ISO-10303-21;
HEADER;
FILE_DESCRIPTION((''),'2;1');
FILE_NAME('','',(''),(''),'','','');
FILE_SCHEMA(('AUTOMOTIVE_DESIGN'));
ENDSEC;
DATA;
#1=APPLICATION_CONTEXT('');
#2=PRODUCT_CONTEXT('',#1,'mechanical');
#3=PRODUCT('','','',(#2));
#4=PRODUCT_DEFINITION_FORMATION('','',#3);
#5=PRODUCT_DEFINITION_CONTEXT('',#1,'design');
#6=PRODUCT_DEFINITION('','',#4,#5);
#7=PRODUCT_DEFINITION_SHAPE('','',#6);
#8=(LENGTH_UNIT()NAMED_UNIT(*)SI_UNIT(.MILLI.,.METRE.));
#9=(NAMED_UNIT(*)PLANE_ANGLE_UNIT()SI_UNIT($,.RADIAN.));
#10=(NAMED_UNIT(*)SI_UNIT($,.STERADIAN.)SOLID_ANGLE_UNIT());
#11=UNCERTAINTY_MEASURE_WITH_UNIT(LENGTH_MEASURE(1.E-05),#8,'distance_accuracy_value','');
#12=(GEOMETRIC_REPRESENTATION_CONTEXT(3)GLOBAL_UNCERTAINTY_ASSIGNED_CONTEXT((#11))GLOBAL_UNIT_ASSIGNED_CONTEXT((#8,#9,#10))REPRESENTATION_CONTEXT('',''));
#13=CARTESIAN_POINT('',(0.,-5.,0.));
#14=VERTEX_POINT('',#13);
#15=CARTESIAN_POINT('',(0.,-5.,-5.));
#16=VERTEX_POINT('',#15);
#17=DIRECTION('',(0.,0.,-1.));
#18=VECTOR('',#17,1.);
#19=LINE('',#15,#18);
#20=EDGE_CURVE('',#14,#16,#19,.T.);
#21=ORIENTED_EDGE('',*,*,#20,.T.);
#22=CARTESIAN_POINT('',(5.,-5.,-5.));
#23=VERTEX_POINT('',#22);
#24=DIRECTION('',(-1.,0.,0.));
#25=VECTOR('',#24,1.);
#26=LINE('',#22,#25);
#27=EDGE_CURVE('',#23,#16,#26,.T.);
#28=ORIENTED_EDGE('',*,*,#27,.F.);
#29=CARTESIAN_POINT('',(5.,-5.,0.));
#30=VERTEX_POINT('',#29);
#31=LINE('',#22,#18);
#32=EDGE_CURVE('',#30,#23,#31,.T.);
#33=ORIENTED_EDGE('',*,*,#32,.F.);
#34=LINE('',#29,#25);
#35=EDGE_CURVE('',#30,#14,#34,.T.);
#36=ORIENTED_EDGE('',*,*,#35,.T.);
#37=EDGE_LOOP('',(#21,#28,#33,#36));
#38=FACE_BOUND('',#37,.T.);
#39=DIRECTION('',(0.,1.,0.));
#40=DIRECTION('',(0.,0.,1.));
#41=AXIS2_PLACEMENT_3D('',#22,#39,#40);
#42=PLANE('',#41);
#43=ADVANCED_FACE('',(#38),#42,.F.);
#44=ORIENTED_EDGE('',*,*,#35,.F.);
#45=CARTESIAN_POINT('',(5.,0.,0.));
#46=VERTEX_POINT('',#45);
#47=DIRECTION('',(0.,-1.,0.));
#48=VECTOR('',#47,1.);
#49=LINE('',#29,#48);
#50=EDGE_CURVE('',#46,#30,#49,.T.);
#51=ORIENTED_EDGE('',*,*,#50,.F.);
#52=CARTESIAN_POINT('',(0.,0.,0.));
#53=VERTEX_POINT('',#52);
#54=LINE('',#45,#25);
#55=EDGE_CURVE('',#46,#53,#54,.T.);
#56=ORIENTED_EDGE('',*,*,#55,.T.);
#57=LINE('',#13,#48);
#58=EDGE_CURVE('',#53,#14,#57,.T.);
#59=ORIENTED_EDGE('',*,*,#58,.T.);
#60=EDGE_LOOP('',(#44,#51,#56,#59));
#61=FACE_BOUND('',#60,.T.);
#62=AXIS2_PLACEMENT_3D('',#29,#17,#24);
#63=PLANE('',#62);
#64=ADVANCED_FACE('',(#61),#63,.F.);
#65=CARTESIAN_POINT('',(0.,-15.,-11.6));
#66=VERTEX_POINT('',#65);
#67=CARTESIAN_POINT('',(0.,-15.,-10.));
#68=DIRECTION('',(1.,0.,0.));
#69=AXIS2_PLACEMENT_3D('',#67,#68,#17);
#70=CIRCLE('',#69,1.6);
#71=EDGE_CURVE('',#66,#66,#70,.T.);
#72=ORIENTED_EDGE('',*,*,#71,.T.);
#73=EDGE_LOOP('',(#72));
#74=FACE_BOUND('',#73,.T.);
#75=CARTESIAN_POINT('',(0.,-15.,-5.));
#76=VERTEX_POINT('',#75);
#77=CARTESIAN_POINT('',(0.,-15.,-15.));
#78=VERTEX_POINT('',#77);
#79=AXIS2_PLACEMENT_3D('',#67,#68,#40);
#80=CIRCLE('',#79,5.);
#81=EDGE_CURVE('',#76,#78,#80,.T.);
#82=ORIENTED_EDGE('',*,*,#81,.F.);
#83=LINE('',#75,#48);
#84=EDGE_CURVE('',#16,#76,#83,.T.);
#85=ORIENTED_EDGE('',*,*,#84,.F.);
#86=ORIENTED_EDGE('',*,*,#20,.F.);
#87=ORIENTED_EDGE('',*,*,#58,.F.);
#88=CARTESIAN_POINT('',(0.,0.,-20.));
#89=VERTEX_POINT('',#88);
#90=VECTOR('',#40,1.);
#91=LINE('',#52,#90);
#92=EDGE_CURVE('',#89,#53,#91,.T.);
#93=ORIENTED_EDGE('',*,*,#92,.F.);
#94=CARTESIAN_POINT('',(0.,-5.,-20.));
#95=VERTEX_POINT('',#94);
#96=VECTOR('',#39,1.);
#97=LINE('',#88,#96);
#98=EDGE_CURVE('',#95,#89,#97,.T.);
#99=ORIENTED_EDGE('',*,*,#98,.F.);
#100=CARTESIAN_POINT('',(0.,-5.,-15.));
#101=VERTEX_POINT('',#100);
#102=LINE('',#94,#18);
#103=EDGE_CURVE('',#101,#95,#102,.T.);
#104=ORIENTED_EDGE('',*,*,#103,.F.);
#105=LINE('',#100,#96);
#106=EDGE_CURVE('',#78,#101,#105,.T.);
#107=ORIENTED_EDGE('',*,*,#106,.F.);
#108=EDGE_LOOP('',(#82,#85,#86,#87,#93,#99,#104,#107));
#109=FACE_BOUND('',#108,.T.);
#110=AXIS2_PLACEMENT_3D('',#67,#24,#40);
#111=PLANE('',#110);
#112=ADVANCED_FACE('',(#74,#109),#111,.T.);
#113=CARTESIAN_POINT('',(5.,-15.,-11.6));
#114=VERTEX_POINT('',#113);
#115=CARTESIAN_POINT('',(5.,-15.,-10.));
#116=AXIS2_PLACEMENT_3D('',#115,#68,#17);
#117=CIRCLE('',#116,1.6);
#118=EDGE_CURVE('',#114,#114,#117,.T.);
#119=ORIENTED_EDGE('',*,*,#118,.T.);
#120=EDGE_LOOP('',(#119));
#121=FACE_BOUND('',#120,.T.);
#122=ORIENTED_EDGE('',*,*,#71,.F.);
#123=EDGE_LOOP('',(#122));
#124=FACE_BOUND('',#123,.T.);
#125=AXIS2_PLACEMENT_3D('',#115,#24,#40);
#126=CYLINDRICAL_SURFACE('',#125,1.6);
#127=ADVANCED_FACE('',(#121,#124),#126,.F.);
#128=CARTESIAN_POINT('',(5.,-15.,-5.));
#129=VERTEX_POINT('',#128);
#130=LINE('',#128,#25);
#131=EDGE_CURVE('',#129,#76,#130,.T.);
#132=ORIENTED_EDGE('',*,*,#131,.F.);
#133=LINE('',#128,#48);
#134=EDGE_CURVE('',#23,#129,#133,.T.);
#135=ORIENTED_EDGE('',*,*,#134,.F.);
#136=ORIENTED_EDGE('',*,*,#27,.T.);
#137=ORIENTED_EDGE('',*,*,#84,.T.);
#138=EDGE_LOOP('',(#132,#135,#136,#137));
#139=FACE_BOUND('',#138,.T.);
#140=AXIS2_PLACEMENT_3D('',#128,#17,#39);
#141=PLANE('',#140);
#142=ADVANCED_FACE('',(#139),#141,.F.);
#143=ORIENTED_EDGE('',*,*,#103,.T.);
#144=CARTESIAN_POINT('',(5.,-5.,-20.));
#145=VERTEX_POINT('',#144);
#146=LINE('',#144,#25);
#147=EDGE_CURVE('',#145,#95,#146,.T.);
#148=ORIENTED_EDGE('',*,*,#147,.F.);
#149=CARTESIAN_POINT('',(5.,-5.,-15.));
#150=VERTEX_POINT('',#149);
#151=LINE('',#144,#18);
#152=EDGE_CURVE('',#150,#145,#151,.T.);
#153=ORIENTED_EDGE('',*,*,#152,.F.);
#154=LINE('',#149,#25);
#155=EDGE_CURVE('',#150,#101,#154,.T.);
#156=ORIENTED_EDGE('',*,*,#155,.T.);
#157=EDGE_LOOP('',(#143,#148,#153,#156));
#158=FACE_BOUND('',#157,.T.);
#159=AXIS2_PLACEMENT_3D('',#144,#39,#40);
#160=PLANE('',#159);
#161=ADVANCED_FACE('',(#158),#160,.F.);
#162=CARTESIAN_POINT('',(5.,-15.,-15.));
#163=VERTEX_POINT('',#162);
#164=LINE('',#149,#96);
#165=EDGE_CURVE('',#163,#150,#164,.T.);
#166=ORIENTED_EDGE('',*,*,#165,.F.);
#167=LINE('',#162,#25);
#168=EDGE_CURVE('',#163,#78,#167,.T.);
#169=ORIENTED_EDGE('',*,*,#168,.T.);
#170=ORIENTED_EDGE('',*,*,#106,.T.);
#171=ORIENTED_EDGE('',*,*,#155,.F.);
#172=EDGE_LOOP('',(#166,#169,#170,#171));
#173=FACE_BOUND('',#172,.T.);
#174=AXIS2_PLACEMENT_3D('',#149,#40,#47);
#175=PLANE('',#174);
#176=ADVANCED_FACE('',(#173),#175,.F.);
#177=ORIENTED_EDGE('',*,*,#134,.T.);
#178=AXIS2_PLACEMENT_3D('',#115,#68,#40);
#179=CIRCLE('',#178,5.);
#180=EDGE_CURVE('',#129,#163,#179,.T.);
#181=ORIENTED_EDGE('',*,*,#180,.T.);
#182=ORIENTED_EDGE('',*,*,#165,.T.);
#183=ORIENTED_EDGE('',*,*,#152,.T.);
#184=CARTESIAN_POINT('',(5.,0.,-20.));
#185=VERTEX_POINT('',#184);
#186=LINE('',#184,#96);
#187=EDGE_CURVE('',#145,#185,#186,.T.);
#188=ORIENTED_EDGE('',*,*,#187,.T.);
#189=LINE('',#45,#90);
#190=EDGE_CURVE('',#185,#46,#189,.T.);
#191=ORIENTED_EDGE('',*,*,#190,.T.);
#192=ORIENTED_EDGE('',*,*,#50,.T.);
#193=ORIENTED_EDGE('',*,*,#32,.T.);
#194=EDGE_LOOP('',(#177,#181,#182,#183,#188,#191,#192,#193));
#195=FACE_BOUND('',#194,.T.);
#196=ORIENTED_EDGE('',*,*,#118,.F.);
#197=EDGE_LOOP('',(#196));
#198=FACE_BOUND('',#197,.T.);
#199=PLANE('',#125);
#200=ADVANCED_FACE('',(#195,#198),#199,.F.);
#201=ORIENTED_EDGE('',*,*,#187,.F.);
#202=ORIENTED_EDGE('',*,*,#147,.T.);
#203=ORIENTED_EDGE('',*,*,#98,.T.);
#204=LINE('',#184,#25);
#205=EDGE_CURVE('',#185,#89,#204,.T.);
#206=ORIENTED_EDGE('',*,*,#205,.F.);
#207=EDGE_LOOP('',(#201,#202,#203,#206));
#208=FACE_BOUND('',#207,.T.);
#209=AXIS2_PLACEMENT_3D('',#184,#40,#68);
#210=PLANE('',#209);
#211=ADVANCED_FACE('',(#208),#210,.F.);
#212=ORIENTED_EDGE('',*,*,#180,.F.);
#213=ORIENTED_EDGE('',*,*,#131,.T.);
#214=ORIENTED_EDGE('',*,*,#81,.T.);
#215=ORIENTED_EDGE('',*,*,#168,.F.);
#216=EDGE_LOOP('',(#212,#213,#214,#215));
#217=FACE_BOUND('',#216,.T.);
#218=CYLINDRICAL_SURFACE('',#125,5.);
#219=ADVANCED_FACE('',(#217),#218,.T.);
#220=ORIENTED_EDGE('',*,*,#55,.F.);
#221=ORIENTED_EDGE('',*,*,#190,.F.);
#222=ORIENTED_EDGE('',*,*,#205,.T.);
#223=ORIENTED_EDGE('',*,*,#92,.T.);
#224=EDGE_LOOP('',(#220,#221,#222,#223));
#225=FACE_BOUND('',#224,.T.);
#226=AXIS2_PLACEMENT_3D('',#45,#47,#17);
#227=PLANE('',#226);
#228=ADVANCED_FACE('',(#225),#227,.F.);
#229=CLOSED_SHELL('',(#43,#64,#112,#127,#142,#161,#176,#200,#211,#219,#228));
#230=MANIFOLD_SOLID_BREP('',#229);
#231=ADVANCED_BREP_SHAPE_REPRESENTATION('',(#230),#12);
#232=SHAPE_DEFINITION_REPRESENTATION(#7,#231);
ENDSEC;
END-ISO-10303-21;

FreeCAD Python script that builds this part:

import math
import FreeCAD as App
import Part
import Sketcher
from FreeCAD import Vector
Q = App.Units.Quantity

doc = App.newDocument("Part")
body = doc.addObject("PartDesign::Body", "Body")

sketch1 = doc.addObject("Sketcher::SketchObject", "Sketch")
body.addObject(sketch1)
sketch1.AttachmentSupport = (doc.YZ_Plane, [""])
sketch1.MapMode = "FlatFace"
sketch1.addGeometry([
    Part.LineSegment(Vector(0, -20, 0), Vector(0, 0, 0)),
    Part.LineSegment(Vector(0, 0, 0), Vector(-5, 0, 0)),
    Part.LineSegment(Vector(-5, 0, 0), Vector(-5, -5, 0)),
    Part.LineSegment(Vector(-5, -5, 0), Vector(-15, -5, 0)),
    Part.ArcOfCircle(Part.Circle(Vector(-15, -10, 0), Vector(0, 0, 1), 5), math.radians(90), math.radians(270)),
    Part.LineSegment(Vector(-15, -15, 0), Vector(-5, -15, 0)),
    Part.LineSegment(Vector(-5, -15, 0), Vector(-5, -20, 0)),
    Part.LineSegment(Vector(-5, -20, 0), Vector(0, -20, 0)),
    Part.Circle(Vector(-15, -10, 0), Vector(0, 0, 1), 1.6),
], False)
sketch1.addConstraint([
    Sketcher.Constraint("Coincident", 0, 2, 1, 1),
    Sketcher.Constraint("Coincident", 1, 2, 2, 1),
    Sketcher.Constraint("Coincident", 2, 2, 3, 1),
    Sketcher.Constraint("Tangent", 3, 2, 4, 1),
    Sketcher.Constraint("Tangent", 4, 2, 5, 1),
    Sketcher.Constraint("Coincident", 5, 2, 6, 1),
    Sketcher.Constraint("Coincident", 6, 2, 7, 1),
    Sketcher.Constraint("Coincident", 7, 2, 0, 1),
    Sketcher.Constraint("Vertical", 0),
    Sketcher.Constraint("Horizontal", 1),
    Sketcher.Constraint("Vertical", 2),
    Sketcher.Constraint("Horizontal", 3),
    Sketcher.Constraint("Horizontal", 5),
    Sketcher.Constraint("Vertical", 6),
    Sketcher.Constraint("Horizontal", 7),
    Sketcher.Constraint("Coincident", 0, 2, -1, 1),
    Sketcher.Constraint("Coincident", 8, 3, 4, 3),
    Sketcher.Constraint("Vertical", 2, 2, 5, 2),
    Sketcher.Constraint("Equal", 7, 2),
    Sketcher.Constraint("Equal", 2, 6),
    Sketcher.Constraint("Radius", 4, Q("5 mm")),
    Sketcher.Constraint("Diameter", 8, Q("3.2 mm")),
    Sketcher.Constraint("DistanceX", 1, 2, 1, 1, Q("5 mm")),
    Sketcher.Constraint("DistanceX", 3, 2, 3, 1, Q("10 mm")),
])
pad1 = doc.addObject("PartDesign::Pad", "Pad")
body.addObject(pad1)
pad1.Profile = sketch1
pad1.Length = 5

doc.recompute()
